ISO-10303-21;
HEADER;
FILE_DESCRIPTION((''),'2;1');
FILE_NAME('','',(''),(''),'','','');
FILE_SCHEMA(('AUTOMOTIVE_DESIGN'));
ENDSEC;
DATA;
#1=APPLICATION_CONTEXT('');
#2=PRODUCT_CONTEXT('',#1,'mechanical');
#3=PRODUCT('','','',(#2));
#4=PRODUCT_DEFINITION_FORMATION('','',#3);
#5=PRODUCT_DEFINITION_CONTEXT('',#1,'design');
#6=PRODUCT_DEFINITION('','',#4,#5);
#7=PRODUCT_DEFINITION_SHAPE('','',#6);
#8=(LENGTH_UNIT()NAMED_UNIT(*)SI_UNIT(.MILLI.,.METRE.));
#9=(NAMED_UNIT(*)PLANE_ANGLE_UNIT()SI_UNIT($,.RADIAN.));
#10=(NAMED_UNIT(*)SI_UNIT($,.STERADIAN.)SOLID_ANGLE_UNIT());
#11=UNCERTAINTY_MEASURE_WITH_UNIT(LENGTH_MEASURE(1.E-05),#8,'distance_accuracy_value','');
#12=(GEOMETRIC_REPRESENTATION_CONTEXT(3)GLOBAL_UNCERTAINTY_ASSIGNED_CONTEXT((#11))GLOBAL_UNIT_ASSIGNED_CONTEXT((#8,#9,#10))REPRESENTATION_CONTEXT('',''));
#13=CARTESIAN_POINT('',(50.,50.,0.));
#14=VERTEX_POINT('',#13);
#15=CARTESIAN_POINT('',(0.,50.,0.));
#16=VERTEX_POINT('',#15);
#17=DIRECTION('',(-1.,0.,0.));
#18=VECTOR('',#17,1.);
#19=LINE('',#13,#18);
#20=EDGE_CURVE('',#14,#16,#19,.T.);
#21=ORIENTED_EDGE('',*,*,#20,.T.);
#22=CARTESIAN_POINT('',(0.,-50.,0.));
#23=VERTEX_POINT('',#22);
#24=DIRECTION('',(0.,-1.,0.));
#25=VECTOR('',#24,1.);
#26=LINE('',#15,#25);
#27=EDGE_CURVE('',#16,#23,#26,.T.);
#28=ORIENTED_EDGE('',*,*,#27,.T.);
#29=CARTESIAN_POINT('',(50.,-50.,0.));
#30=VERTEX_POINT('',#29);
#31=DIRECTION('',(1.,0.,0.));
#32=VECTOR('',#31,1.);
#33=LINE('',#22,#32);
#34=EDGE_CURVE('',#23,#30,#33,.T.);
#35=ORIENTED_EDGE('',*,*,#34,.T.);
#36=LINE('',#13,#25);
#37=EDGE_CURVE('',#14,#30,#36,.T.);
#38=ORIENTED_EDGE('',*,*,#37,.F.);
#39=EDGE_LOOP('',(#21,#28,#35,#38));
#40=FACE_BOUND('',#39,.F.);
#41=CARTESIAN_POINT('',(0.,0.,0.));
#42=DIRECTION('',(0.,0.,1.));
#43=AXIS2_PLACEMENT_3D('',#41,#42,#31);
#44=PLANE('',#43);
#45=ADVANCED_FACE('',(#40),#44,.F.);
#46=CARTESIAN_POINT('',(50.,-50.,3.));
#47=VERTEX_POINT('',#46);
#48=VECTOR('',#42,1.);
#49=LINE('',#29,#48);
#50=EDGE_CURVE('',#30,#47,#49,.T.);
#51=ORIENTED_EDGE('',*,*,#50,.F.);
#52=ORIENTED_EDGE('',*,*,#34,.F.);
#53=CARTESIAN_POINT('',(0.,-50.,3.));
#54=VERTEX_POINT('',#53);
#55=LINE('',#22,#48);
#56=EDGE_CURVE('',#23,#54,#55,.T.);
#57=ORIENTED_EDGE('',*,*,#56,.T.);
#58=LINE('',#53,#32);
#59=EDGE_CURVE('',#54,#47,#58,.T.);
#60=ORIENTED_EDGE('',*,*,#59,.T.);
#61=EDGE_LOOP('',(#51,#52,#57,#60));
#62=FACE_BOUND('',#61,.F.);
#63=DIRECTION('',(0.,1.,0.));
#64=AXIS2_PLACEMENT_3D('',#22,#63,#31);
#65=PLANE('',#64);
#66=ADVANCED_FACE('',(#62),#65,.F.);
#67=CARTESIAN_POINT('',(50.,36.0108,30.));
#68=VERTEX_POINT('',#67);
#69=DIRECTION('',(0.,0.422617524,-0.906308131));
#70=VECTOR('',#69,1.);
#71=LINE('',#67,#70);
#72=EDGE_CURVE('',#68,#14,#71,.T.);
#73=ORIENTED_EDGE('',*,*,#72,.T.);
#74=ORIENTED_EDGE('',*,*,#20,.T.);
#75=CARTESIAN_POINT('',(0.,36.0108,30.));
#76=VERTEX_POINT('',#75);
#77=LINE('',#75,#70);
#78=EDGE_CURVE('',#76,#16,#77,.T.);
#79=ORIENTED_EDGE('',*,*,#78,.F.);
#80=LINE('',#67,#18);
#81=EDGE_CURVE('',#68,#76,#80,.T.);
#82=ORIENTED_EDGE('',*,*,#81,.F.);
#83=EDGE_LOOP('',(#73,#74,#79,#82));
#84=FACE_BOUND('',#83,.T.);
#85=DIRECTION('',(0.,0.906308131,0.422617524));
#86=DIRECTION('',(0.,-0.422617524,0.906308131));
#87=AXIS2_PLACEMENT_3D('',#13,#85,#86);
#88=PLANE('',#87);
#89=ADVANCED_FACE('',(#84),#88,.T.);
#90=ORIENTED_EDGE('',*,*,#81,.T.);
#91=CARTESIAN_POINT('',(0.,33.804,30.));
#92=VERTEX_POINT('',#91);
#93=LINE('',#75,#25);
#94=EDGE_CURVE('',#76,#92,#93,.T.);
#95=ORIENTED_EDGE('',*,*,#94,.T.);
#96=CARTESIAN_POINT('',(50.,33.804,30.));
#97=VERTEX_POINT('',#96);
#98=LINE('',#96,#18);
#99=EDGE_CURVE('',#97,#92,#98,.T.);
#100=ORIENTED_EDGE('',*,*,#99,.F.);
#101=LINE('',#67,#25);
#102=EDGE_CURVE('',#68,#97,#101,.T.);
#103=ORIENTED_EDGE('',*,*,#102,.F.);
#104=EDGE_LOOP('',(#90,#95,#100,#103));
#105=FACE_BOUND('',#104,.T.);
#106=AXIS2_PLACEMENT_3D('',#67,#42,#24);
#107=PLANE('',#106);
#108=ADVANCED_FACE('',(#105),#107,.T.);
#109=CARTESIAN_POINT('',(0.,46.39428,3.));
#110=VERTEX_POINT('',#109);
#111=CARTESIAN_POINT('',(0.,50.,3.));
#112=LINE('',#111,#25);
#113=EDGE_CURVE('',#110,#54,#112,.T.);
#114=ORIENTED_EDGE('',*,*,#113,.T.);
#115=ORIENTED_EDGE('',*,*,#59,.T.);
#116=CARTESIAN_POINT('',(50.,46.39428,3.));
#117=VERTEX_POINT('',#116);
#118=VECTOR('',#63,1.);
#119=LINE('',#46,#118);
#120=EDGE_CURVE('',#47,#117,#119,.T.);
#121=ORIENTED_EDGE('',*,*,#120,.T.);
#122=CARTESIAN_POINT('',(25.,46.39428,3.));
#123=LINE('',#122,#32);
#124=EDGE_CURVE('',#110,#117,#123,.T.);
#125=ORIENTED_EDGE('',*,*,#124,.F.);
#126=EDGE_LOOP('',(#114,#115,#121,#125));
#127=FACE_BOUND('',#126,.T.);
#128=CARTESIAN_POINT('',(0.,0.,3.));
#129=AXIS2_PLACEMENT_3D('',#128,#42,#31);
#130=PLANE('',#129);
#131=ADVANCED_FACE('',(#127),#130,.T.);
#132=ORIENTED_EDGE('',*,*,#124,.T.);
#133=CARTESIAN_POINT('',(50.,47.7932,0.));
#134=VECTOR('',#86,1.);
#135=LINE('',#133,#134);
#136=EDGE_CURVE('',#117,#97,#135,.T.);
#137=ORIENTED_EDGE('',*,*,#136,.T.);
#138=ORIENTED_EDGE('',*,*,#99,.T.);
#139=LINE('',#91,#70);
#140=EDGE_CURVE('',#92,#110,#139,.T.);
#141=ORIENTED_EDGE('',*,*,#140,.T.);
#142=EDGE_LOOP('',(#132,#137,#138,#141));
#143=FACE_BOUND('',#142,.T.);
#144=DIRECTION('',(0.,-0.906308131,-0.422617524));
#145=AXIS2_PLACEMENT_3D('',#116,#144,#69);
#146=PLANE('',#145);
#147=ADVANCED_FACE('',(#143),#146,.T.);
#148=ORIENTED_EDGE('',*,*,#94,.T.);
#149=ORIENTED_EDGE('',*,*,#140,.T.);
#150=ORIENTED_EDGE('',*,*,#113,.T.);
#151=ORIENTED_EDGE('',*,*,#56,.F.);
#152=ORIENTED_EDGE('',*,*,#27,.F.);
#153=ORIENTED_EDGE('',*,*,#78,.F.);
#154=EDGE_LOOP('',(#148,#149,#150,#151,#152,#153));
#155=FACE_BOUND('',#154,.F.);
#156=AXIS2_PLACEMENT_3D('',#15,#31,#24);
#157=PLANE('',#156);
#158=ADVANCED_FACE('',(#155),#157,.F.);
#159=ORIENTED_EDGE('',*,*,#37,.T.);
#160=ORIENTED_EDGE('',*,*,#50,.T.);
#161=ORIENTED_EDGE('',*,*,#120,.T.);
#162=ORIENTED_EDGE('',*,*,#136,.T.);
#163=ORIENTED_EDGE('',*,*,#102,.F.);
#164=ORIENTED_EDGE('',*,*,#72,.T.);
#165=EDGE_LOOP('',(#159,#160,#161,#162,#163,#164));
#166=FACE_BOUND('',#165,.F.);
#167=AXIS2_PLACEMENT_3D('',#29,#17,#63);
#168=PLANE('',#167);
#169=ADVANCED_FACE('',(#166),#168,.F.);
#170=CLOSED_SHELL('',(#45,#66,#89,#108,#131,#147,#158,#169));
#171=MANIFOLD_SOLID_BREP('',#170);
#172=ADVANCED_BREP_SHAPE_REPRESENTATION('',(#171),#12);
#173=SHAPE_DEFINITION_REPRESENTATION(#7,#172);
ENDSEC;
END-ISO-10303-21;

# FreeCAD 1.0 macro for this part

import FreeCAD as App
import Part
import Sketcher
Q = App.Units.Quantity


def add_polygon(sketch, points):
    """Adds a closed chain of lines whose ends are joined by coincident constraints."""
    first, n = sketch.GeometryCount, len(points)
    for a, b in zip(points, points[1:] + points[:1]):
        sketch.addGeometry(Part.LineSegment(App.Vector(*a, 0), App.Vector(*b, 0)), False)
    for i in range(n):
        sketch.addConstraint(Sketcher.Constraint("Coincident", first + i, 2, first + (i + 1) % n, 1))

doc = App.newDocument("Part")
body = doc.addObject("PartDesign::Body", "Body")

sketch1 = body.newObject("Sketcher::SketchObject", "Sketch")
sketch1.AttachmentSupport = (doc.getObject("XY_Plane"), [""])
sketch1.MapMode = "FlatFace"
add_polygon(sketch1, [(0, 50), (0, -50), (50, -50), (50, 50)])
sketch1.addConstraint([
    Sketcher.Constraint("Vertical", 0),
    Sketcher.Constraint("Horizontal", 1),
    Sketcher.Constraint("Vertical", 2),
    Sketcher.Constraint("Horizontal", 3),
    Sketcher.Constraint("Symmetric", 0, 2, 3, 2, -1, 1),
    Sketcher.Constraint("DistanceX", 1, 1, 1, 2, 50.0),
    Sketcher.Constraint("DistanceY", 0, 2, 0, 1, 100.0),
])
pad1 = body.newObject("PartDesign::Pad", "Pad")
pad1.Profile = sketch1
pad1.Length = 3

sketch2 = body.newObject("Sketcher::SketchObject", "Sketch001")
sketch2.AttachmentSupport = (doc.getObject("YZ_Plane"), [""])
sketch2.MapMode = "FlatFace"
sketch2.AttachmentOffset = App.Placement(App.Vector(0, 0, 50), App.Rotation())
add_polygon(sketch2, [(47.7932, 0), (50, 0), (36.0108, 30), (33.804, 30)])
sketch2.addConstraint([
    Sketcher.Constraint("Horizontal", 0),
    Sketcher.Constraint("Horizontal", 2),
    Sketcher.Constraint("PointOnObject", 0, 2, -1),
    Sketcher.Constraint("Parallel", 1, 3),
    Sketcher.Constraint("Angle", 3, Q("-65 deg")),
    Sketcher.Constraint("DistanceY", -1, 1, 1, 2, 30.0),
    Sketcher.Constraint("DistanceX", -1, 1, 0, 2, 50.0),
    Sketcher.Constraint("DistanceX", 0, 1, 0, 2, 2.2068),
])
pad2 = body.newObject("PartDesign::Pad", "Pad001")
pad2.Profile = sketch2
pad2.Length = 50
pad2.Reversed = True

sketch3 = body.newObject("Sketcher::SketchObject", "Sketch002")
sketch3.AttachmentSupport = (doc.getObject("YZ_Plane"), [""])
sketch3.MapMode = "FlatFace"
sketch3.AttachmentOffset = App.Placement(App.Vector(0, 0, 50), App.Rotation())
add_polygon(sketch3, [(48.60108, 3), (50, 0), (50, 3)])
sketch3.addConstraint([
    Sketcher.Constraint("Vertical", 1),
    Sketcher.Constraint("Horizontal", 2),
    Sketcher.Constraint("PointOnObject", 0, 2, -1),
    Sketcher.Constraint("Angle", 0, Q("-65 deg")),
    Sketcher.Constraint("DistanceY", 1, 1, 1, 2, 3.0),
    Sketcher.Constraint("DistanceX", -1, 1, 0, 2, 50.0),
])
pocket1 = body.newObject("PartDesign::Pocket", "Pocket")
pocket1.Profile = sketch3
pocket1.Type = "ThroughAll"

doc.recompute()
